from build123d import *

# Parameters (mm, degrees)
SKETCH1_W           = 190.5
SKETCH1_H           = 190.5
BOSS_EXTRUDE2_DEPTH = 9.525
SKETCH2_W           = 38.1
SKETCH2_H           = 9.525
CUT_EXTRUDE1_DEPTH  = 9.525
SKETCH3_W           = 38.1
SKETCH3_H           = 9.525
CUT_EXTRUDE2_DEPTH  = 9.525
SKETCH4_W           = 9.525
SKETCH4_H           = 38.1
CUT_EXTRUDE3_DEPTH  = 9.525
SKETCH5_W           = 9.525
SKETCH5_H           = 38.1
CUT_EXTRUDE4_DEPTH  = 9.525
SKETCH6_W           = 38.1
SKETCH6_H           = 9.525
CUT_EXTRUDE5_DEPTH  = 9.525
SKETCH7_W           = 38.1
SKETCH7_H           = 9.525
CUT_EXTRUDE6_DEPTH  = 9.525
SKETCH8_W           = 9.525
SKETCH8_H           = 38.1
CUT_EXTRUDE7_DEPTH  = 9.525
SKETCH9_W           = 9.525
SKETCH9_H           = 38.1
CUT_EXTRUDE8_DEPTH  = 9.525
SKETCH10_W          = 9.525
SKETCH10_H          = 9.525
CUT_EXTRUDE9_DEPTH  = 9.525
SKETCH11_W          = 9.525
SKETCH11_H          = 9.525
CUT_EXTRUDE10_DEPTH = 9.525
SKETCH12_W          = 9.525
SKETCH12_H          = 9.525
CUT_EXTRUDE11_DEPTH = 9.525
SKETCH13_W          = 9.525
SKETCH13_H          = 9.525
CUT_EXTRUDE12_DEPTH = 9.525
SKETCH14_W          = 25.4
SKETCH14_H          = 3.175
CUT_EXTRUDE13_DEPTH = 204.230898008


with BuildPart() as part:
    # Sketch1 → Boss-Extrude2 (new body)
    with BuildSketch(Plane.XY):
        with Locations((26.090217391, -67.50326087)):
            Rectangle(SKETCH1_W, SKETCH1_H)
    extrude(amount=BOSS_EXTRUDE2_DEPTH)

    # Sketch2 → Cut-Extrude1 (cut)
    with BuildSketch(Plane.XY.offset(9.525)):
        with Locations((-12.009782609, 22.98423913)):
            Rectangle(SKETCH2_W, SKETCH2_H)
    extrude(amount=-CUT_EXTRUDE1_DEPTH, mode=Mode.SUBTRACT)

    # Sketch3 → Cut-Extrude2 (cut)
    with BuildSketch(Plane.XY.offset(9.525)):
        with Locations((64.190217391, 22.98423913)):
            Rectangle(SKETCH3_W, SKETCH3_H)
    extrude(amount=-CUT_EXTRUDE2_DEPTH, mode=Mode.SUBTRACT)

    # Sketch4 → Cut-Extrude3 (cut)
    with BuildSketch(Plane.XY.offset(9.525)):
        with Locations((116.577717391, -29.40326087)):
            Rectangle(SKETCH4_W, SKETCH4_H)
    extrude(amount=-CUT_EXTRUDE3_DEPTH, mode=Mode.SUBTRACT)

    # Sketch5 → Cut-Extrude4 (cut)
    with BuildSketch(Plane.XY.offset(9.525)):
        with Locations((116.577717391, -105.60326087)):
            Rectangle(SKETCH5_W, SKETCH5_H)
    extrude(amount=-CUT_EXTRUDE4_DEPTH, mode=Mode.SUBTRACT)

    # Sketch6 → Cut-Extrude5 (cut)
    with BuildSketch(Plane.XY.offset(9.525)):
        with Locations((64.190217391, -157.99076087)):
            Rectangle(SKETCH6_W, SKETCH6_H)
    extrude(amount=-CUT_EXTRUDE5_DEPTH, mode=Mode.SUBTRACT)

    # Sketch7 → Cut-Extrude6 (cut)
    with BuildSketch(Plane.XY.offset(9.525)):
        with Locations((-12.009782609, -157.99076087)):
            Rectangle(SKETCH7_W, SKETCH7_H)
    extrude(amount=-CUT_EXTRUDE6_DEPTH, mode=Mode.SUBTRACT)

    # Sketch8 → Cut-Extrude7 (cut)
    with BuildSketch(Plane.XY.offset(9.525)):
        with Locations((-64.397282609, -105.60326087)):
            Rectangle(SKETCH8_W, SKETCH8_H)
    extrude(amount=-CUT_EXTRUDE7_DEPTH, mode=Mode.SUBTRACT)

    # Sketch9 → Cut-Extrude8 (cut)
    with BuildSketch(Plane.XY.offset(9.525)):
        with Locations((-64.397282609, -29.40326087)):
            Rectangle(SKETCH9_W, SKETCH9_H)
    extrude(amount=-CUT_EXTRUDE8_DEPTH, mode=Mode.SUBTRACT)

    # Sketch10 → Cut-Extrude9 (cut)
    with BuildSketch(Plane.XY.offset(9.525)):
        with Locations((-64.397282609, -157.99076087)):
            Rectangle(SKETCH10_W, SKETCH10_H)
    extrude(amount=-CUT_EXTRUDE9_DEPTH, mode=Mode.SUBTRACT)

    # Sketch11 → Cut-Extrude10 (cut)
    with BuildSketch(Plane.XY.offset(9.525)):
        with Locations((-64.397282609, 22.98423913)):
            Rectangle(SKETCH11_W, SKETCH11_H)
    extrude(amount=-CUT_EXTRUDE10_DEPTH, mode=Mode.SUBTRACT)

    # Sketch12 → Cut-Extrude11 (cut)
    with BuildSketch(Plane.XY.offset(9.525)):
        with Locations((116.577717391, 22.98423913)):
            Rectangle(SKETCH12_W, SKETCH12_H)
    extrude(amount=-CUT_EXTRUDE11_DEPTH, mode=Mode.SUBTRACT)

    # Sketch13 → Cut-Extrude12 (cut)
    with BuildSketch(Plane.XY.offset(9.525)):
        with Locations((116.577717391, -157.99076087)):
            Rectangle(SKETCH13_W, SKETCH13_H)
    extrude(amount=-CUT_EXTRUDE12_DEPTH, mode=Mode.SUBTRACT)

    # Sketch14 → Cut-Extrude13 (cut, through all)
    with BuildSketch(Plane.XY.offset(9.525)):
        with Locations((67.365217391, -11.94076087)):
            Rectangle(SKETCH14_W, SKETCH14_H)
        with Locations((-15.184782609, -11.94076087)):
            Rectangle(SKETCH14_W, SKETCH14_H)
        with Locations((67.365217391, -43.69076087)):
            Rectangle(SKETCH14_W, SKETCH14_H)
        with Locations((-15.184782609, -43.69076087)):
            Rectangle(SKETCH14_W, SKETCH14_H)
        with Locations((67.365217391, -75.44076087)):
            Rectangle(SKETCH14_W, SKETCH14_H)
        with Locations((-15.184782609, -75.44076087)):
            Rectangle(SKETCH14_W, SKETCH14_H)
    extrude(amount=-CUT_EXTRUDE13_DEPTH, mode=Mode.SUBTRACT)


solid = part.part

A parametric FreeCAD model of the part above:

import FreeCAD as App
import Part
import Sketcher
Q = App.Units.Quantity


def add_polygon(sketch, points):
    """Adds a closed chain of lines whose ends are joined by coincident constraints."""
    first, n = sketch.GeometryCount, len(points)
    for a, b in zip(points, points[1:] + points[:1]):
        sketch.addGeometry(Part.LineSegment(App.Vector(*a, 0), App.Vector(*b, 0)), False)
    for i in range(n):
        sketch.addConstraint(Sketcher.Constraint("Coincident", first + i, 2, first + (i + 1) % n, 1))

doc = App.newDocument("Part")
params = doc.addObject("Spreadsheet::Sheet", "Params")
for row, (alias, value) in enumerate([
    ("sketch1_width", "7.5 in"),
    ("pad1_length", "0.375 in"),
    ("sketch2_width", "1.5 in"),
    ("sketch2_height", "0.375 in"),
    ("pocket1_length", "0.375 in"),
    ("sketch3_width", "1.5 in"),
    ("sketch3_height", "0.375 in"),
    ("pocket2_length", "0.375 in"),
    ("sketch4_height", "1.5 in"),
    ("sketch4_width", "0.375 in"),
    ("pocket3_length", "0.375 in"),
    ("sketch5_height", "1.5 in"),
    ("sketch5_width", "0.375 in"),
    ("pocket4_length", "0.375 in"),
    ("sketch6_width", "1.5 in"),
    ("sketch6_height", "0.375 in"),
    ("pocket5_length", "0.375 in"),
    ("sketch7_width", "1.5 in"),
    ("sketch7_height", "0.375 in"),
    ("pocket6_length", "0.375 in"),
    ("sketch8_height", "1.5 in"),
    ("sketch8_width", "0.375 in"),
    ("pocket7_length", "0.375 in"),
    ("sketch9_height", "1.5 in"),
    ("sketch9_width", "0.375 in"),
    ("pocket8_length", "0.375 in"),
    ("sketch10_width", "0.375 in"),
    ("pocket9_length", "0.375 in"),
    ("sketch11_width", "0.375 in"),
    ("pocket10_length", "0.375 in"),
    ("sketch12_width", "0.375 in"),
    ("pocket11_length", "0.375 in"),
    ("sketch13_width", "0.375 in"),
    ("pocket12_length", "0.375 in"),
    ("sketch14_width", "1 in"),
    ("sketch14_height", "0.125 in"),
], start=1):
    params.set(f"A{row}", alias)
    params.set(f"B{row}", "=" + value)
    params.setAlias(f"B{row}", alias)

body = doc.addObject("PartDesign::Body", "Body")

# Sketch on XY plane
sketch1 = body.newObject("Sketcher::SketchObject", "Sketch")
sketch1.AttachmentSupport = (doc.getObject("XY_Plane"), [""])
sketch1.MapMode = "FlatFace"
add_polygon(sketch1, [(-69.159783, 27.746739), (-69.159783, -162.753261), (121.340217, -162.753261), (121.340217, 27.746739)])  # lines 0-3
sketch1.addConstraint(Sketcher.Constraint("Vertical", 0))
sketch1.addConstraint(Sketcher.Constraint("Horizontal", 1))
sketch1.addConstraint(Sketcher.Constraint("Vertical", 2))
sketch1.addConstraint(Sketcher.Constraint("Horizontal", 3))
sketch1.addConstraint(Sketcher.Constraint("Equal", 3, 0))
sketch1.addConstraint(Sketcher.Constraint("DistanceX", 1, 1, 1, 2, Q("7.5 in")))
sketch1.addConstraint(Sketcher.Constraint("DistanceY", 0, 2, -1, 1, Q("162.753261 mm")))
sketch1.addConstraint(Sketcher.Constraint("DistanceX", 0, 2, -1, 1, Q("69.159783 mm")))
sketch1.setExpression("Constraints[9]", "Params.sketch1_width")
pad1 = body.newObject("PartDesign::Pad", "Pad")
pad1.Profile = sketch1
pad1.setExpression("Length", "Params.pad1_length")

# Sketch on XY plane
sketch2 = body.newObject("Sketcher::SketchObject", "Sketch001")
sketch2.AttachmentSupport = (doc.getObject("XY_Plane"), [""])
sketch2.MapMode = "FlatFace"
sketch2.AttachmentOffset = App.Placement(App.Vector(0, 0, 0.375 * 25.4), App.Rotation())
add_polygon(sketch2, [(-31.059783, 27.746739), (-31.059783, 18.221739), (7.040217, 18.221739), (7.040217, 27.746739)])  # lines 0-3
sketch2.addConstraint(Sketcher.Constraint("Vertical", 0))
sketch2.addConstraint(Sketcher.Constraint("Horizontal", 1))
sketch2.addConstraint(Sketcher.Constraint("Vertical", 2))
sketch2.addConstraint(Sketcher.Constraint("Horizontal", 3))
sketch2.addConstraint(Sketcher.Constraint("DistanceX", 1, 1, 1, 2, Q("1.5 in")))
sketch2.addConstraint(Sketcher.Constraint("DistanceY", 0, 2, 0, 1, Q("0.375 in")))
sketch2.addConstraint(Sketcher.Constraint("DistanceY", -1, 1, 0, 2, Q("18.221739 mm")))
sketch2.addConstraint(Sketcher.Constraint("DistanceX", 0, 2, -1, 1, Q("31.059783 mm")))
sketch2.setExpression("Constraints[8]", "Params.sketch2_width")
sketch2.setExpression("Constraints[9]", "Params.sketch2_height")
pocket1 = body.newObject("PartDesign::Pocket", "Pocket")
pocket1.Profile = sketch2
pocket1.setExpression("Length", "Params.pocket1_length")

# Sketch on XY plane
sketch3 = body.newObject("Sketcher::SketchObject", "Sketch002")
sketch3.AttachmentSupport = (doc.getObject("XY_Plane"), [""])
sketch3.MapMode = "FlatFace"
sketch3.AttachmentOffset = App.Placement(App.Vector(0, 0, 0.375 * 25.4), App.Rotation())
add_polygon(sketch3, [(45.140217, 27.746739), (45.140217, 18.221739), (83.240217, 18.221739), (83.240217, 27.746739)])  # lines 0-3
sketch3.addConstraint(Sketcher.Constraint("Vertical", 0))
sketch3.addConstraint(Sketcher.Constraint("Horizontal", 1))
sketch3.addConstraint(Sketcher.Constraint("Vertical", 2))
sketch3.addConstraint(Sketcher.Constraint("Horizontal", 3))
sketch3.addConstraint(Sketcher.Constraint("DistanceX", 1, 1, 1, 2, Q("1.5 in")))
sketch3.addConstraint(Sketcher.Constraint("DistanceY", 0, 2, 0, 1, Q("0.375 in")))
sketch3.addConstraint(Sketcher.Constraint("DistanceY", -1, 1, 0, 2, Q("18.221739 mm")))
sketch3.addConstraint(Sketcher.Constraint("DistanceX", -1, 1, 0, 2, Q("45.140217 mm")))
sketch3.setExpression("Constraints[8]", "Params.sketch3_width")
sketch3.setExpression("Constraints[9]", "Params.sketch3_height")
pocket2 = body.newObject("PartDesign::Pocket", "Pocket001")
pocket2.Profile = sketch3
pocket2.setExpression("Length", "Params.pocket2_length")

# Sketch on XY plane
sketch4 = body.newObject("Sketcher::SketchObject", "Sketch003")
sketch4.AttachmentSupport = (doc.getObject("XY_Plane"), [""])
sketch4.MapMode = "FlatFace"
sketch4.AttachmentOffset = App.Placement(App.Vector(0, 0, 0.375 * 25.4), App.Rotation())
add_polygon(sketch4, [(111.815217, -10.353261), (111.815217, -48.453261), (121.340217, -48.453261), (121.340217, -10.353261)])  # lines 0-3
sketch4.addConstraint(Sketcher.Constraint("Vertical", 0))
sketch4.addConstraint(Sketcher.Constraint("Horizontal", 1))
sketch4.addConstraint(Sketcher.Constraint("Vertical", 2))
sketch4.addConstraint(Sketcher.Constraint("Horizontal", 3))
sketch4.addConstraint(Sketcher.Constraint("DistanceY", 0, 2, 0, 1, Q("1.5 in")))
sketch4.addConstraint(Sketcher.Constraint("DistanceX", 1, 1, 1, 2, Q("0.375 in")))
sketch4.addConstraint(Sketcher.Constraint("DistanceY", 0, 2, -1, 1, Q("48.453261 mm")))
sketch4.addConstraint(Sketcher.Constraint("DistanceX", -1, 1, 0, 2, Q("111.815217 mm")))
sketch4.setExpression("Constraints[8]", "Params.sketch4_height")
sketch4.setExpression("Constraints[9]", "Params.sketch4_width")
pocket3 = body.newObject("PartDesign::Pocket", "Pocket002")
pocket3.Profile = sketch4
pocket3.setExpression("Length", "Params.pocket3_length")

# Sketch on XY plane
sketch5 = body.newObject("Sketcher::SketchObject", "Sketch004")
sketch5.AttachmentSupport = (doc.getObject("XY_Plane"), [""])
sketch5.MapMode = "FlatFace"
sketch5.AttachmentOffset = App.Placement(App.Vector(0, 0, 0.375 * 25.4), App.Rotation())
add_polygon(sketch5, [(111.815217, -86.553261), (111.815217, -124.653261), (121.340217, -124.653261), (121.340217, -86.553261)])  # lines 0-3
sketch5.addConstraint(Sketcher.Constraint("Vertical", 0))
sketch5.addConstraint(Sketcher.Constraint("Horizontal", 1))
sketch5.addConstraint(Sketcher.Constraint("Vertical", 2))
sketch5.addConstraint(Sketcher.Constraint("Horizontal", 3))
sketch5.addConstraint(Sketcher.Constraint("DistanceY", 0, 2, 0, 1, Q("1.5 in")))
sketch5.addConstraint(Sketcher.Constraint("DistanceX", 1, 1, 1, 2, Q("0.375 in")))
sketch5.addConstraint(Sketcher.Constraint("DistanceY", 0, 2, -1, 1, Q("124.653261 mm")))
sketch5.addConstraint(Sketcher.Constraint("DistanceX", -1, 1, 0, 2, Q("111.815217 mm")))
sketch5.setExpression("Constraints[8]", "Params.sketch5_height")
sketch5.setExpression("Constraints[9]", "Params.sketch5_width")
pocket4 = body.newObject("PartDesign::Pocket", "Pocket003")
pocket4.Profile = sketch5
pocket4.setExpression("Length", "Params.pocket4_length")

# Sketch on XY plane
sketch6 = body.newObject("Sketcher::SketchObject", "Sketch005")
sketch6.AttachmentSupport = (doc.getObject("XY_Plane"), [""])
sketch6.MapMode = "FlatFace"
sketch6.AttachmentOffset = App.Placement(App.Vector(0, 0, 0.375 * 25.4), App.Rotation())
add_polygon(sketch6, [(45.140217, -153.228261), (45.140217, -162.753261), (83.240217, -162.753261), (83.240217, -153.228261)])  # lines 0-3
sketch6.addConstraint(Sketcher.Constraint("Vertical", 0))
sketch6.addConstraint(Sketcher.Constraint("Horizontal", 1))
sketch6.addConstraint(Sketcher.Constraint("Vertical", 2))
sketch6.addConstraint(Sketcher.Constraint("Horizontal", 3))
sketch6.addConstraint(Sketcher.Constraint("DistanceX", 1, 1, 1, 2, Q("1.5 in")))
sketch6.addConstraint(Sketcher.Constraint("DistanceY", 0, 2, 0, 1, Q("0.375 in")))
sketch6.addConstraint(Sketcher.Constraint("DistanceY", 0, 2, -1, 1, Q("162.753261 mm")))
sketch6.addConstraint(Sketcher.Constraint("DistanceX", -1, 1, 0, 2, Q("45.140217 mm")))
sketch6.setExpression("Constraints[8]", "Params.sketch6_width")
sketch6.setExpression("Constraints[9]", "Params.sketch6_height")
pocket5 = body.newObject("PartDesign::Pocket", "Pocket004")
pocket5.Profile = sketch6
pocket5.setExpression("Length", "Params.pocket5_length")

# Sketch on XY plane
sketch7 = body.newObject("Sketcher::SketchObject", "Sketch006")
sketch7.AttachmentSupport = (doc.getObject("XY_Plane"), [""])
sketch7.MapMode = "FlatFace"
sketch7.AttachmentOffset = App.Placement(App.Vector(0, 0, 0.375 * 25.4), App.Rotation())
add_polygon(sketch7, [(-31.059783, -153.228261), (-31.059783, -162.753261), (7.040217, -162.753261), (7.040217, -153.228261)])  # lines 0-3
sketch7.addConstraint(Sketcher.Constraint("Vertical", 0))
sketch7.addConstraint(Sketcher.Constraint("Horizontal", 1))
sketch7.addConstraint(Sketcher.Constraint("Vertical", 2))
sketch7.addConstraint(Sketcher.Constraint("Horizontal", 3))
sketch7.addConstraint(Sketcher.Constraint("DistanceX", 1, 1, 1, 2, Q("1.5 in")))
sketch7.addConstraint(Sketcher.Constraint("DistanceY", 0, 2, 0, 1, Q("0.375 in")))
sketch7.addConstraint(Sketcher.Constraint("DistanceY", 0, 2, -1, 1, Q("162.753261 mm")))
sketch7.addConstraint(Sketcher.Constraint("DistanceX", 0, 2, -1, 1, Q("31.059783 mm")))
sketch7.setExpression("Constraints[8]", "Params.sketch7_width")
sketch7.setExpression("Constraints[9]", "Params.sketch7_height")
pocket6 = body.newObject("PartDesign::Pocket", "Pocket005")
pocket6.Profile = sketch7
pocket6.setExpression("Length", "Params.pocket6_length")

# Sketch on XY plane
sketch8 = body.newObject("Sketcher::SketchObject", "Sketch007")
sketch8.AttachmentSupport = (doc.getObject("XY_Plane"), [""])
sketch8.MapMode = "FlatFace"
sketch8.AttachmentOffset = App.Placement(App.Vector(0, 0, 0.375 * 25.4), App.Rotation())
add_polygon(sketch8, [(-69.159783, -86.553261), (-69.159783, -124.653261), (-59.634783, -124.653261), (-59.634783, -86.553261)])  # lines 0-3
sketch8.addConstraint(Sketcher.Constraint("Vertical", 0))
sketch8.addConstraint(Sketcher.Constraint("Horizontal", 1))
sketch8.addConstraint(Sketcher.Constraint("Vertical", 2))
sketch8.addConstraint(Sketcher.Constraint("Horizontal", 3))
sketch8.addConstraint(Sketcher.Constraint("DistanceY", 0, 2, 0, 1, Q("1.5 in")))
sketch8.addConstraint(Sketcher.Constraint("DistanceX", 1, 1, 1, 2, Q("0.375 in")))
sketch8.addConstraint(Sketcher.Constraint("DistanceY", 0, 2, -1, 1, Q("124.653261 mm")))
sketch8.addConstraint(Sketcher.Constraint("DistanceX", 0, 2, -1, 1, Q("69.159783 mm")))
sketch8.setExpression("Constraints[8]", "Params.sketch8_height")
sketch8.setExpression("Constraints[9]", "Params.sketch8_width")
pocket7 = body.newObject("PartDesign::Pocket", "Pocket006")
pocket7.Profile = sketch8
pocket7.setExpression("Length", "Params.pocket7_length")

# Sketch on XY plane
sketch9 = body.newObject("Sketcher::SketchObject", "Sketch008")
sketch9.AttachmentSupport = (doc.getObject("XY_Plane"), [""])
sketch9.MapMode = "FlatFace"
sketch9.AttachmentOffset = App.Placement(App.Vector(0, 0, 0.375 * 25.4), App.Rotation())
add_polygon(sketch9, [(-69.159783, -10.353261), (-69.159783, -48.453261), (-59.634783, -48.453261), (-59.634783, -10.353261)])  # lines 0-3
sketch9.addConstraint(Sketcher.Constraint("Vertical", 0))
sketch9.addConstraint(Sketcher.Constraint("Horizontal", 1))
sketch9.addConstraint(Sketcher.Constraint("Vertical", 2))
sketch9.addConstraint(Sketcher.Constraint("Horizontal", 3))
sketch9.addConstraint(Sketcher.Constraint("DistanceY", 0, 2, 0, 1, Q("1.5 in")))
sketch9.addConstraint(Sketcher.Constraint("DistanceX", 1, 1, 1, 2, Q("0.375 in")))
sketch9.addConstraint(Sketcher.Constraint("DistanceY", 0, 2, -1, 1, Q("48.453261 mm")))
sketch9.addConstraint(Sketcher.Constraint("DistanceX", 0, 2, -1, 1, Q("69.159783 mm")))
sketch9.setExpression("Constraints[8]", "Params.sketch9_height")
sketch9.setExpression("Constraints[9]", "Params.sketch9_width")
pocket8 = body.newObject("PartDesign::Pocket", "Pocket007")
pocket8.Profile = sketch9
pocket8.setExpression("Length", "Params.pocket8_length")

# Sketch on XY plane
sketch10 = body.newObject("Sketcher::SketchObject", "Sketch009")
sketch10.AttachmentSupport = (doc.getObject("XY_Plane"), [""])
sketch10.MapMode = "FlatFace"
sketch10.AttachmentOffset = App.Placement(App.Vector(0, 0, 0.375 * 25.4), App.Rotation())
add_polygon(sketch10, [(-69.159783, -153.228261), (-69.159783, -162.753261), (-59.634783, -162.753261), (-59.634783, -153.228261)])  # lines 0-3
sketch10.addConstraint(Sketcher.Constraint("Vertical", 0))
sketch10.addConstraint(Sketcher.Constraint("Horizontal", 1))
sketch10.addConstraint(Sketcher.Constraint("Vertical", 2))
sketch10.addConstraint(Sketcher.Constraint("Horizontal", 3))
sketch10.addConstraint(Sketcher.Constraint("Equal", 3, 0))
sketch10.addConstraint(Sketcher.Constraint("DistanceX", 1, 1, 1, 2, Q("0.375 in")))
sketch10.addConstraint(Sketcher.Constraint("DistanceY", 0, 2, -1, 1, Q("162.753261 mm")))
sketch10.addConstraint(Sketcher.Constraint("DistanceX", 0, 2, -1, 1, Q("69.159783 mm")))
sketch10.setExpression("Constraints[9]", "Params.sketch10_width")
pocket9 = body.newObject("PartDesign::Pocket", "Pocket008")
pocket9.Profile = sketch10
pocket9.setExpression("Length", "Params.pocket9_length")

# Sketch on XY plane
sketch11 = body.newObject("Sketcher::SketchObject", "Sketch010")
sketch11.AttachmentSupport = (doc.getObject("XY_Plane"), [""])
sketch11.MapMode = "FlatFace"
sketch11.AttachmentOffset = App.Placement(App.Vector(0, 0, 0.375 * 25.4), App.Rotation())
add_polygon(sketch11, [(-69.159783, 27.746739), (-69.159783, 18.221739), (-59.634783, 18.221739), (-59.634783, 27.746739)])  # lines 0-3
sketch11.addConstraint(Sketcher.Constraint("Vertical", 0))
sketch11.addConstraint(Sketcher.Constraint("Horizontal", 1))
sketch11.addConstraint(Sketcher.Constraint("Vertical", 2))
sketch11.addConstraint(Sketcher.Constraint("Horizontal", 3))
sketch11.addConstraint(Sketcher.Constraint("Equal", 3, 0))
sketch11.addConstraint(Sketcher.Constraint("DistanceX", 1, 1, 1, 2, Q("0.375 in")))
sketch11.addConstraint(Sketcher.Constraint("DistanceY", -1, 1, 0, 2, Q("18.221739 mm")))
sketch11.addConstraint(Sketcher.Constraint("DistanceX", 0, 2, -1, 1, Q("69.159783 mm")))
sketch11.setExpression("Constraints[9]", "Params.sketch11_width")
pocket10 = body.newObject("PartDesign::Pocket", "Pocket009")
pocket10.Profile = sketch11
pocket10.setExpression("Length", "Params.pocket10_length")

# Sketch on XY plane
sketch12 = body.newObject("Sketcher::SketchObject", "Sketch011")
sketch12.AttachmentSupport = (doc.getObject("XY_Plane"), [""])
sketch12.MapMode = "FlatFace"
sketch12.AttachmentOffset = App.Placement(App.Vector(0, 0, 0.375 * 25.4), App.Rotation())
add_polygon(sketch12, [(111.815217, 27.746739), (111.815217, 18.221739), (121.340217, 18.221739), (121.340217, 27.746739)])  # lines 0-3
sketch12.addConstraint(Sketcher.Constraint("Vertical", 0))
sketch12.addConstraint(Sketcher.Constraint("Horizontal", 1))
sketch12.addConstraint(Sketcher.Constraint("Vertical", 2))
sketch12.addConstraint(Sketcher.Constraint("Horizontal", 3))
sketch12.addConstraint(Sketcher.Constraint("Equal", 3, 0))
sketch12.addConstraint(Sketcher.Constraint("DistanceX", 1, 1, 1, 2, Q("0.375 in")))
sketch12.addConstraint(Sketcher.Constraint("DistanceY", -1, 1, 0, 2, Q("18.221739 mm")))
sketch12.addConstraint(Sketcher.Constraint("DistanceX", -1, 1, 0, 2, Q("111.815217 mm")))
sketch12.setExpression("Constraints[9]", "Params.sketch12_width")
pocket11 = body.newObject("PartDesign::Pocket", "Pocket010")
pocket11.Profile = sketch12
pocket11.setExpression("Length", "Params.pocket11_length")

# Sketch on XY plane
sketch13 = body.newObject("Sketcher::SketchObject", "Sketch012")
sketch13.AttachmentSupport = (doc.getObject("XY_Plane"), [""])
sketch13.MapMode = "FlatFace"
sketch13.AttachmentOffset = App.Placement(App.Vector(0, 0, 0.375 * 25.4), App.Rotation())
add_polygon(sketch13, [(111.815217, -153.228261), (111.815217, -162.753261), (121.340217, -162.753261), (121.340217, -153.228261)])  # lines 0-3
sketch13.addConstraint(Sketcher.Constraint("Vertical", 0))
sketch13.addConstraint(Sketcher.Constraint("Horizontal", 1))
sketch13.addConstraint(Sketcher.Constraint("Vertical", 2))
sketch13.addConstraint(Sketcher.Constraint("Horizontal", 3))
sketch13.addConstraint(Sketcher.Constraint("Equal", 3, 0))
sketch13.addConstraint(Sketcher.Constraint("DistanceX", 1, 1, 1, 2, Q("0.375 in")))
sketch13.addConstraint(Sketcher.Constraint("DistanceY", 0, 2, -1, 1, Q("162.753261 mm")))
sketch13.addConstraint(Sketcher.Constraint("DistanceX", -1, 1, 0, 2, Q("111.815217 mm")))
sketch13.setExpression("Constraints[9]", "Params.sketch13_width")
pocket12 = body.newObject("PartDesign::Pocket", "Pocket011")
pocket12.Profile = sketch13
pocket12.setExpression("Length", "Params.pocket12_length")

# Sketch on XY plane
sketch14 = body.newObject("Sketcher::SketchObject", "Sketch013")
sketch14.AttachmentSupport = (doc.getObject("XY_Plane"), [""])
sketch14.MapMode = "FlatFace"
sketch14.AttachmentOffset = App.Placement(App.Vector(0, 0, 0.375 * 25.4), App.Rotation())
add_polygon(sketch14, [(54.665217, -10.353261), (54.665217, -13.528261), (80.065217, -13.528261), (80.065217, -10.353261)])  # lines 0-3
add_polygon(sketch14, [(-27.884783, -10.353261), (-27.884783, -13.528261), (-2.484783, -13.528261), (-2.484783, -10.353261)])  # lines 4-7
add_polygon(sketch14, [(54.665217, -42.103261), (54.665217, -45.278261), (80.065217, -45.278261), (80.065217, -42.103261)])  # lines 8-11
add_polygon(sketch14, [(-27.884783, -42.103261), (-27.884783, -45.278261), (-2.484783, -45.278261), (-2.484783, -42.103261)])  # lines 12-15
add_polygon(sketch14, [(54.665217, -73.853261), (54.665217, -77.028261), (80.065217, -77.028261), (80.065217, -73.853261)])  # lines 16-19
add_polygon(sketch14, [(-27.884783, -73.853261), (-27.884783, -77.028261), (-2.484783, -77.028261), (-2.484783, -73.853261)])  # lines 20-23
sketch14.addConstraint(Sketcher.Constraint("Vertical", 0))
sketch14.addConstraint(Sketcher.Constraint("Horizontal", 1))
sketch14.addConstraint(Sketcher.Constraint("Vertical", 2))
sketch14.addConstraint(Sketcher.Constraint("Horizontal", 3))
sketch14.addConstraint(Sketcher.Constraint("Vertical", 4))
sketch14.addConstraint(Sketcher.Constraint("Horizontal", 5))
sketch14.addConstraint(Sketcher.Constraint("Vertical", 6))
sketch14.addConstraint(Sketcher.Constraint("Horizontal", 7))
sketch14.addConstraint(Sketcher.Constraint("Vertical", 8))
sketch14.addConstraint(Sketcher.Constraint("Horizontal", 9))
sketch14.addConstraint(Sketcher.Constraint("Vertical", 10))
sketch14.addConstraint(Sketcher.Constraint("Horizontal", 11))
sketch14.addConstraint(Sketcher.Constraint("Vertical", 12))
sketch14.addConstraint(Sketcher.Constraint("Horizontal", 13))
sketch14.addConstraint(Sketcher.Constraint("Vertical", 14))
sketch14.addConstraint(Sketcher.Constraint("Horizontal", 15))
sketch14.addConstraint(Sketcher.Constraint("Vertical", 16))
sketch14.addConstraint(Sketcher.Constraint("Horizontal", 17))
sketch14.addConstraint(Sketcher.Constraint("Vertical", 18))
sketch14.addConstraint(Sketcher.Constraint("Horizontal", 19))
sketch14.addConstraint(Sketcher.Constraint("Vertical", 20))
sketch14.addConstraint(Sketcher.Constraint("Horizontal", 21))
sketch14.addConstraint(Sketcher.Constraint("Vertical", 22))
sketch14.addConstraint(Sketcher.Constraint("Horizontal", 23))
sketch14.addConstraint(Sketcher.Constraint("Horizontal", 1, 2, 4, 2))
sketch14.addConstraint(Sketcher.Constraint("Horizontal", 3, 2, 6, 2))
sketch14.addConstraint(Sketcher.Constraint("Horizontal", 9, 2, 12, 2))
sketch14.addConstraint(Sketcher.Constraint("Horizontal", 11, 2, 14, 2))
sketch14.addConstraint(Sketcher.Constraint("Horizontal", 17, 2, 20, 2))
sketch14.addConstraint(Sketcher.Constraint("Horizontal", 19, 2, 22, 2))
sketch14.addConstraint(Sketcher.Constraint("Vertical", 3, 2, 8, 2))
sketch14.addConstraint(Sketcher.Constraint("Vertical", 2, 2, 9, 2))
sketch14.addConstraint(Sketcher.Constraint("Vertical", 7, 2, 12, 2))
sketch14.addConstraint(Sketcher.Constraint("Vertical", 6, 2, 13, 2))
sketch14.addConstraint(Sketcher.Constraint("Vertical", 11, 2, 16, 2))
sketch14.addConstraint(Sketcher.Constraint("Vertical", 10, 2, 17, 2))
sketch14.addConstraint(Sketcher.Constraint("Vertical", 15, 2, 20, 2))
sketch14.addConstraint(Sketcher.Constraint("Vertical", 14, 2, 21, 2))
sketch14.addConstraint(Sketcher.Constraint("Equal", 3, 5))
sketch14.addConstraint(Sketcher.Constraint("Equal", 6, 8))
sketch14.addConstraint(Sketcher.Constraint("Equal", 14, 16))
sketch14.addConstraint(Sketcher.Constraint("DistanceX", 1, 1, 1, 2, Q("1 in")))
sketch14.addConstraint(Sketcher.Constraint("DistanceY", 16, 2, 0, 2, Q("2.5 in")))
sketch14.addConstraint(Sketcher.Constraint("DistanceY", 0, 2, 0, 1, Q("0.125 in")))
sketch14.addConstraint(Sketcher.Constraint("DistanceX", 4, 2, 0, 2, Q("3.25 in")))
sketch14.addConstraint(Sketcher.Constraint("DistanceY", 8, 2, 0, 2, Q("1.25 in")))
sketch14.addConstraint(Sketcher.Constraint("DistanceY", 0, 2, -1, 1, Q("13.528261 mm")))
sketch14.addConstraint(Sketcher.Constraint("DistanceX", -1, 1, 0, 2, Q("54.665217 mm")))
sketch14.setExpression("Constraints[65]", "Params.sketch14_width")
sketch14.setExpression("Constraints[67]", "Params.sketch14_height")
pocket13 = body.newObject("PartDesign::Pocket", "Pocket012")
pocket13.Profile = sketch14
pocket13.Type = "ThroughAll"

doc.recompute()
